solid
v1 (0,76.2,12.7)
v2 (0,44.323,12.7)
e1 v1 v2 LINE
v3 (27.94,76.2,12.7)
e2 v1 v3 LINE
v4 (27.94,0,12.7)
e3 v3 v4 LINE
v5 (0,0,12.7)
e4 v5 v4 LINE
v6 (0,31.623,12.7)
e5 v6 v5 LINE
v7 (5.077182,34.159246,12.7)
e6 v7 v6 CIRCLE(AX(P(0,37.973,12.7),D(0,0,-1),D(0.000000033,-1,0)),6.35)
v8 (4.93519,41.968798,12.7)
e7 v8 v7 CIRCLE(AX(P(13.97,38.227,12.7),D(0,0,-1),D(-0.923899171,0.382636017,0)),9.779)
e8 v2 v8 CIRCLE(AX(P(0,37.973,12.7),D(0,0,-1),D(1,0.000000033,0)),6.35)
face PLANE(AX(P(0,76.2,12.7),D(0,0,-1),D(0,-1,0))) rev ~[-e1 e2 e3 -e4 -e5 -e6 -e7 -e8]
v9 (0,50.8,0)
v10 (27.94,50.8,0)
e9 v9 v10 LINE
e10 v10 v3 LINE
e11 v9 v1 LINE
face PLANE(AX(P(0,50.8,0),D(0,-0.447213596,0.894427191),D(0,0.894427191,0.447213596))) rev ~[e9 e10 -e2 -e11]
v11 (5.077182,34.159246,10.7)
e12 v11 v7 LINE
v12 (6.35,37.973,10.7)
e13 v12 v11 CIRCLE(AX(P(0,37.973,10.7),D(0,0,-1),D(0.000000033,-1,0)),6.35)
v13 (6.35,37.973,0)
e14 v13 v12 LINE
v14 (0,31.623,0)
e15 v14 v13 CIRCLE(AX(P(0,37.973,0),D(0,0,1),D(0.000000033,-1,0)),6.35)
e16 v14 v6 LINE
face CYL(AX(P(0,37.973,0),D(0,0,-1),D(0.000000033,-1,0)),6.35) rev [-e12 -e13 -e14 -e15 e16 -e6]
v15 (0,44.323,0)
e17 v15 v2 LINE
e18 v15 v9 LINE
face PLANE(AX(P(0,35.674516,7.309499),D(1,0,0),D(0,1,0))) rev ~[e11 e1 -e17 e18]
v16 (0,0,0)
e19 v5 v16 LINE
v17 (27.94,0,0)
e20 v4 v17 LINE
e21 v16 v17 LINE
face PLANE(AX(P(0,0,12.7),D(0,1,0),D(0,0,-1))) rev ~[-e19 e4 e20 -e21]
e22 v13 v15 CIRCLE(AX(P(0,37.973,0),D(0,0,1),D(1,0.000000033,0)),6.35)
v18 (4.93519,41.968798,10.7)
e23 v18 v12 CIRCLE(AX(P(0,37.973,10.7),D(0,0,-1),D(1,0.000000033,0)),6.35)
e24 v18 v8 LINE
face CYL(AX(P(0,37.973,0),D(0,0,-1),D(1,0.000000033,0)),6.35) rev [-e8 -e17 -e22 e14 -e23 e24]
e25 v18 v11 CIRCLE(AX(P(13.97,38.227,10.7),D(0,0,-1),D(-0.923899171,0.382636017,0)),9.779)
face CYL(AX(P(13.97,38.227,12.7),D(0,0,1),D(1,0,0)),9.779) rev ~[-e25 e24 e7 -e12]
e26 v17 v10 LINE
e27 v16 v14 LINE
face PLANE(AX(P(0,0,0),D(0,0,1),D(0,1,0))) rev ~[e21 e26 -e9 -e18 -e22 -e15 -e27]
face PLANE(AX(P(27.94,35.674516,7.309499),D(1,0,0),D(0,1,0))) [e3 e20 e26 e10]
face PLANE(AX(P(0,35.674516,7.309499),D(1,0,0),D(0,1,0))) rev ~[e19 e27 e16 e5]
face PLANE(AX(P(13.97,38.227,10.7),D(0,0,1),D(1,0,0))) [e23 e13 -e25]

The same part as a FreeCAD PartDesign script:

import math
import FreeCAD as App
import Part
import Sketcher

V = App.Vector
Q = App.Units.Quantity


def add_polygon(sketch, points):
    """Adds a closed chain of lines whose ends are joined by coincident constraints."""
    first, n = sketch.GeometryCount, len(points)
    for a, b in zip(points, points[1:] + points[:1]):
        sketch.addGeometry(Part.LineSegment(App.Vector(*a, 0), App.Vector(*b, 0)), False)
    for i in range(n):
        sketch.addConstraint(Sketcher.Constraint("Coincident", first + i, 2, first + (i + 1) % n, 1))

doc = App.newDocument("Part")
body = doc.addObject("PartDesign::Body", "Body")

sketch1 = body.newObject("Sketcher::SketchObject", "Sketch")
sketch1.AttachmentSupport = (doc.getObject("YZ_Plane"), [""])
sketch1.MapMode = "FlatFace"
add_polygon(sketch1, [(0, 13), (0, 0), (51, 0), (76, 13)])
sketch1.addConstraint(Sketcher.Constraint("Vertical", 0))
sketch1.addConstraint(Sketcher.Constraint("Horizontal", 1))
sketch1.addConstraint(Sketcher.Constraint("Horizontal", 3))
sketch1.addConstraint(Sketcher.Constraint("Coincident", 0, 2, -1, 1))
sketch1.addConstraint(Sketcher.Constraint("DistanceX", 1, 1, 1, 2, Q("2 in")))
sketch1.addConstraint(Sketcher.Constraint("DistanceX", 3, 2, 3, 1, Q("3 in")))
sketch1.addConstraint(Sketcher.Constraint("DistanceY", 0, 2, 0, 1, Q("0.5 in")))
pad1 = body.newObject("PartDesign::Pad", "Pad")
pad1.Profile = sketch1
pad1.Length = Q("1.1 in")

sketch2 = body.newObject("Sketcher::SketchObject", "Sketch001")
sketch2.AttachmentSupport = (doc.getObject("XY_Plane"), [""])
sketch2.MapMode = "FlatFace"
sketch2.AttachmentOffset = App.Placement(V(0, 0, 0.5 * 25.4), App.Rotation())
sketch2.addGeometry(Part.Circle(V(14, 38, 0), V(0, 0, 1), 10), False)
sketch2.addConstraint(Sketcher.Constraint("Diameter", 0, Q("0.77 in")))
sketch2.addConstraint(Sketcher.Constraint("DistanceX", -1, 1, 0, 3, Q("0.55 in")))
sketch2.addConstraint(Sketcher.Constraint("DistanceY", -1, 1, 0, 3, Q("1.505 in")))
pocket1 = body.newObject("PartDesign::Pocket", "Pocket")
pocket1.Profile = sketch2
pocket1.Length = 2

sketch3 = body.newObject("Sketcher::SketchObject", "Sketch002")
sketch3.AttachmentSupport = (doc.getObject("XY_Plane"), [""])
sketch3.MapMode = "FlatFace"
sketch3.addGeometry(Part.ArcOfCircle(Part.Circle(V(0, 38, 0), V(0, 0, 1), 6), math.radians(90), math.radians(270)), False)
sketch3.addGeometry(Part.ArcOfCircle(Part.Circle(V(0, 38, 0), V(0, 0, 1), 6), math.radians(-90), math.radians(0)), False)
sketch3.addGeometry(Part.ArcOfCircle(Part.Circle(V(0, 38, 0), V(0, 0, 1), 6), math.radians(0), math.radians(90)), False)
sketch3.addConstraint(Sketcher.Constraint("Tangent", 0, 2, 1, 1))
sketch3.addConstraint(Sketcher.Constraint("Tangent", 1, 2, 2, 1))
sketch3.addConstraint(Sketcher.Constraint("Tangent", 2, 2, 0, 1))
sketch3.addConstraint(Sketcher.Constraint("PointOnObject", 0, 3, -2))
sketch3.addConstraint(Sketcher.Constraint("PointOnObject", 0, 2, -2))
sketch3.addConstraint(Sketcher.Constraint("PointOnObject", 2, 2, -2))
sketch3.addConstraint(Sketcher.Constraint("Horizontal", 2, 3, 1, 2))
sketch3.addConstraint(Sketcher.Constraint("Radius", 0, Q("0.25 in")))
sketch3.addConstraint(Sketcher.Constraint("DistanceY", -1, 1, 0, 3, Q("1.495 in")))
pocket2 = body.newObject("PartDesign::Pocket", "Pocket001")
pocket2.Profile = sketch3
pocket2.Length = Q("1 in")
pocket2.Reversed = True

doc.recompute()
